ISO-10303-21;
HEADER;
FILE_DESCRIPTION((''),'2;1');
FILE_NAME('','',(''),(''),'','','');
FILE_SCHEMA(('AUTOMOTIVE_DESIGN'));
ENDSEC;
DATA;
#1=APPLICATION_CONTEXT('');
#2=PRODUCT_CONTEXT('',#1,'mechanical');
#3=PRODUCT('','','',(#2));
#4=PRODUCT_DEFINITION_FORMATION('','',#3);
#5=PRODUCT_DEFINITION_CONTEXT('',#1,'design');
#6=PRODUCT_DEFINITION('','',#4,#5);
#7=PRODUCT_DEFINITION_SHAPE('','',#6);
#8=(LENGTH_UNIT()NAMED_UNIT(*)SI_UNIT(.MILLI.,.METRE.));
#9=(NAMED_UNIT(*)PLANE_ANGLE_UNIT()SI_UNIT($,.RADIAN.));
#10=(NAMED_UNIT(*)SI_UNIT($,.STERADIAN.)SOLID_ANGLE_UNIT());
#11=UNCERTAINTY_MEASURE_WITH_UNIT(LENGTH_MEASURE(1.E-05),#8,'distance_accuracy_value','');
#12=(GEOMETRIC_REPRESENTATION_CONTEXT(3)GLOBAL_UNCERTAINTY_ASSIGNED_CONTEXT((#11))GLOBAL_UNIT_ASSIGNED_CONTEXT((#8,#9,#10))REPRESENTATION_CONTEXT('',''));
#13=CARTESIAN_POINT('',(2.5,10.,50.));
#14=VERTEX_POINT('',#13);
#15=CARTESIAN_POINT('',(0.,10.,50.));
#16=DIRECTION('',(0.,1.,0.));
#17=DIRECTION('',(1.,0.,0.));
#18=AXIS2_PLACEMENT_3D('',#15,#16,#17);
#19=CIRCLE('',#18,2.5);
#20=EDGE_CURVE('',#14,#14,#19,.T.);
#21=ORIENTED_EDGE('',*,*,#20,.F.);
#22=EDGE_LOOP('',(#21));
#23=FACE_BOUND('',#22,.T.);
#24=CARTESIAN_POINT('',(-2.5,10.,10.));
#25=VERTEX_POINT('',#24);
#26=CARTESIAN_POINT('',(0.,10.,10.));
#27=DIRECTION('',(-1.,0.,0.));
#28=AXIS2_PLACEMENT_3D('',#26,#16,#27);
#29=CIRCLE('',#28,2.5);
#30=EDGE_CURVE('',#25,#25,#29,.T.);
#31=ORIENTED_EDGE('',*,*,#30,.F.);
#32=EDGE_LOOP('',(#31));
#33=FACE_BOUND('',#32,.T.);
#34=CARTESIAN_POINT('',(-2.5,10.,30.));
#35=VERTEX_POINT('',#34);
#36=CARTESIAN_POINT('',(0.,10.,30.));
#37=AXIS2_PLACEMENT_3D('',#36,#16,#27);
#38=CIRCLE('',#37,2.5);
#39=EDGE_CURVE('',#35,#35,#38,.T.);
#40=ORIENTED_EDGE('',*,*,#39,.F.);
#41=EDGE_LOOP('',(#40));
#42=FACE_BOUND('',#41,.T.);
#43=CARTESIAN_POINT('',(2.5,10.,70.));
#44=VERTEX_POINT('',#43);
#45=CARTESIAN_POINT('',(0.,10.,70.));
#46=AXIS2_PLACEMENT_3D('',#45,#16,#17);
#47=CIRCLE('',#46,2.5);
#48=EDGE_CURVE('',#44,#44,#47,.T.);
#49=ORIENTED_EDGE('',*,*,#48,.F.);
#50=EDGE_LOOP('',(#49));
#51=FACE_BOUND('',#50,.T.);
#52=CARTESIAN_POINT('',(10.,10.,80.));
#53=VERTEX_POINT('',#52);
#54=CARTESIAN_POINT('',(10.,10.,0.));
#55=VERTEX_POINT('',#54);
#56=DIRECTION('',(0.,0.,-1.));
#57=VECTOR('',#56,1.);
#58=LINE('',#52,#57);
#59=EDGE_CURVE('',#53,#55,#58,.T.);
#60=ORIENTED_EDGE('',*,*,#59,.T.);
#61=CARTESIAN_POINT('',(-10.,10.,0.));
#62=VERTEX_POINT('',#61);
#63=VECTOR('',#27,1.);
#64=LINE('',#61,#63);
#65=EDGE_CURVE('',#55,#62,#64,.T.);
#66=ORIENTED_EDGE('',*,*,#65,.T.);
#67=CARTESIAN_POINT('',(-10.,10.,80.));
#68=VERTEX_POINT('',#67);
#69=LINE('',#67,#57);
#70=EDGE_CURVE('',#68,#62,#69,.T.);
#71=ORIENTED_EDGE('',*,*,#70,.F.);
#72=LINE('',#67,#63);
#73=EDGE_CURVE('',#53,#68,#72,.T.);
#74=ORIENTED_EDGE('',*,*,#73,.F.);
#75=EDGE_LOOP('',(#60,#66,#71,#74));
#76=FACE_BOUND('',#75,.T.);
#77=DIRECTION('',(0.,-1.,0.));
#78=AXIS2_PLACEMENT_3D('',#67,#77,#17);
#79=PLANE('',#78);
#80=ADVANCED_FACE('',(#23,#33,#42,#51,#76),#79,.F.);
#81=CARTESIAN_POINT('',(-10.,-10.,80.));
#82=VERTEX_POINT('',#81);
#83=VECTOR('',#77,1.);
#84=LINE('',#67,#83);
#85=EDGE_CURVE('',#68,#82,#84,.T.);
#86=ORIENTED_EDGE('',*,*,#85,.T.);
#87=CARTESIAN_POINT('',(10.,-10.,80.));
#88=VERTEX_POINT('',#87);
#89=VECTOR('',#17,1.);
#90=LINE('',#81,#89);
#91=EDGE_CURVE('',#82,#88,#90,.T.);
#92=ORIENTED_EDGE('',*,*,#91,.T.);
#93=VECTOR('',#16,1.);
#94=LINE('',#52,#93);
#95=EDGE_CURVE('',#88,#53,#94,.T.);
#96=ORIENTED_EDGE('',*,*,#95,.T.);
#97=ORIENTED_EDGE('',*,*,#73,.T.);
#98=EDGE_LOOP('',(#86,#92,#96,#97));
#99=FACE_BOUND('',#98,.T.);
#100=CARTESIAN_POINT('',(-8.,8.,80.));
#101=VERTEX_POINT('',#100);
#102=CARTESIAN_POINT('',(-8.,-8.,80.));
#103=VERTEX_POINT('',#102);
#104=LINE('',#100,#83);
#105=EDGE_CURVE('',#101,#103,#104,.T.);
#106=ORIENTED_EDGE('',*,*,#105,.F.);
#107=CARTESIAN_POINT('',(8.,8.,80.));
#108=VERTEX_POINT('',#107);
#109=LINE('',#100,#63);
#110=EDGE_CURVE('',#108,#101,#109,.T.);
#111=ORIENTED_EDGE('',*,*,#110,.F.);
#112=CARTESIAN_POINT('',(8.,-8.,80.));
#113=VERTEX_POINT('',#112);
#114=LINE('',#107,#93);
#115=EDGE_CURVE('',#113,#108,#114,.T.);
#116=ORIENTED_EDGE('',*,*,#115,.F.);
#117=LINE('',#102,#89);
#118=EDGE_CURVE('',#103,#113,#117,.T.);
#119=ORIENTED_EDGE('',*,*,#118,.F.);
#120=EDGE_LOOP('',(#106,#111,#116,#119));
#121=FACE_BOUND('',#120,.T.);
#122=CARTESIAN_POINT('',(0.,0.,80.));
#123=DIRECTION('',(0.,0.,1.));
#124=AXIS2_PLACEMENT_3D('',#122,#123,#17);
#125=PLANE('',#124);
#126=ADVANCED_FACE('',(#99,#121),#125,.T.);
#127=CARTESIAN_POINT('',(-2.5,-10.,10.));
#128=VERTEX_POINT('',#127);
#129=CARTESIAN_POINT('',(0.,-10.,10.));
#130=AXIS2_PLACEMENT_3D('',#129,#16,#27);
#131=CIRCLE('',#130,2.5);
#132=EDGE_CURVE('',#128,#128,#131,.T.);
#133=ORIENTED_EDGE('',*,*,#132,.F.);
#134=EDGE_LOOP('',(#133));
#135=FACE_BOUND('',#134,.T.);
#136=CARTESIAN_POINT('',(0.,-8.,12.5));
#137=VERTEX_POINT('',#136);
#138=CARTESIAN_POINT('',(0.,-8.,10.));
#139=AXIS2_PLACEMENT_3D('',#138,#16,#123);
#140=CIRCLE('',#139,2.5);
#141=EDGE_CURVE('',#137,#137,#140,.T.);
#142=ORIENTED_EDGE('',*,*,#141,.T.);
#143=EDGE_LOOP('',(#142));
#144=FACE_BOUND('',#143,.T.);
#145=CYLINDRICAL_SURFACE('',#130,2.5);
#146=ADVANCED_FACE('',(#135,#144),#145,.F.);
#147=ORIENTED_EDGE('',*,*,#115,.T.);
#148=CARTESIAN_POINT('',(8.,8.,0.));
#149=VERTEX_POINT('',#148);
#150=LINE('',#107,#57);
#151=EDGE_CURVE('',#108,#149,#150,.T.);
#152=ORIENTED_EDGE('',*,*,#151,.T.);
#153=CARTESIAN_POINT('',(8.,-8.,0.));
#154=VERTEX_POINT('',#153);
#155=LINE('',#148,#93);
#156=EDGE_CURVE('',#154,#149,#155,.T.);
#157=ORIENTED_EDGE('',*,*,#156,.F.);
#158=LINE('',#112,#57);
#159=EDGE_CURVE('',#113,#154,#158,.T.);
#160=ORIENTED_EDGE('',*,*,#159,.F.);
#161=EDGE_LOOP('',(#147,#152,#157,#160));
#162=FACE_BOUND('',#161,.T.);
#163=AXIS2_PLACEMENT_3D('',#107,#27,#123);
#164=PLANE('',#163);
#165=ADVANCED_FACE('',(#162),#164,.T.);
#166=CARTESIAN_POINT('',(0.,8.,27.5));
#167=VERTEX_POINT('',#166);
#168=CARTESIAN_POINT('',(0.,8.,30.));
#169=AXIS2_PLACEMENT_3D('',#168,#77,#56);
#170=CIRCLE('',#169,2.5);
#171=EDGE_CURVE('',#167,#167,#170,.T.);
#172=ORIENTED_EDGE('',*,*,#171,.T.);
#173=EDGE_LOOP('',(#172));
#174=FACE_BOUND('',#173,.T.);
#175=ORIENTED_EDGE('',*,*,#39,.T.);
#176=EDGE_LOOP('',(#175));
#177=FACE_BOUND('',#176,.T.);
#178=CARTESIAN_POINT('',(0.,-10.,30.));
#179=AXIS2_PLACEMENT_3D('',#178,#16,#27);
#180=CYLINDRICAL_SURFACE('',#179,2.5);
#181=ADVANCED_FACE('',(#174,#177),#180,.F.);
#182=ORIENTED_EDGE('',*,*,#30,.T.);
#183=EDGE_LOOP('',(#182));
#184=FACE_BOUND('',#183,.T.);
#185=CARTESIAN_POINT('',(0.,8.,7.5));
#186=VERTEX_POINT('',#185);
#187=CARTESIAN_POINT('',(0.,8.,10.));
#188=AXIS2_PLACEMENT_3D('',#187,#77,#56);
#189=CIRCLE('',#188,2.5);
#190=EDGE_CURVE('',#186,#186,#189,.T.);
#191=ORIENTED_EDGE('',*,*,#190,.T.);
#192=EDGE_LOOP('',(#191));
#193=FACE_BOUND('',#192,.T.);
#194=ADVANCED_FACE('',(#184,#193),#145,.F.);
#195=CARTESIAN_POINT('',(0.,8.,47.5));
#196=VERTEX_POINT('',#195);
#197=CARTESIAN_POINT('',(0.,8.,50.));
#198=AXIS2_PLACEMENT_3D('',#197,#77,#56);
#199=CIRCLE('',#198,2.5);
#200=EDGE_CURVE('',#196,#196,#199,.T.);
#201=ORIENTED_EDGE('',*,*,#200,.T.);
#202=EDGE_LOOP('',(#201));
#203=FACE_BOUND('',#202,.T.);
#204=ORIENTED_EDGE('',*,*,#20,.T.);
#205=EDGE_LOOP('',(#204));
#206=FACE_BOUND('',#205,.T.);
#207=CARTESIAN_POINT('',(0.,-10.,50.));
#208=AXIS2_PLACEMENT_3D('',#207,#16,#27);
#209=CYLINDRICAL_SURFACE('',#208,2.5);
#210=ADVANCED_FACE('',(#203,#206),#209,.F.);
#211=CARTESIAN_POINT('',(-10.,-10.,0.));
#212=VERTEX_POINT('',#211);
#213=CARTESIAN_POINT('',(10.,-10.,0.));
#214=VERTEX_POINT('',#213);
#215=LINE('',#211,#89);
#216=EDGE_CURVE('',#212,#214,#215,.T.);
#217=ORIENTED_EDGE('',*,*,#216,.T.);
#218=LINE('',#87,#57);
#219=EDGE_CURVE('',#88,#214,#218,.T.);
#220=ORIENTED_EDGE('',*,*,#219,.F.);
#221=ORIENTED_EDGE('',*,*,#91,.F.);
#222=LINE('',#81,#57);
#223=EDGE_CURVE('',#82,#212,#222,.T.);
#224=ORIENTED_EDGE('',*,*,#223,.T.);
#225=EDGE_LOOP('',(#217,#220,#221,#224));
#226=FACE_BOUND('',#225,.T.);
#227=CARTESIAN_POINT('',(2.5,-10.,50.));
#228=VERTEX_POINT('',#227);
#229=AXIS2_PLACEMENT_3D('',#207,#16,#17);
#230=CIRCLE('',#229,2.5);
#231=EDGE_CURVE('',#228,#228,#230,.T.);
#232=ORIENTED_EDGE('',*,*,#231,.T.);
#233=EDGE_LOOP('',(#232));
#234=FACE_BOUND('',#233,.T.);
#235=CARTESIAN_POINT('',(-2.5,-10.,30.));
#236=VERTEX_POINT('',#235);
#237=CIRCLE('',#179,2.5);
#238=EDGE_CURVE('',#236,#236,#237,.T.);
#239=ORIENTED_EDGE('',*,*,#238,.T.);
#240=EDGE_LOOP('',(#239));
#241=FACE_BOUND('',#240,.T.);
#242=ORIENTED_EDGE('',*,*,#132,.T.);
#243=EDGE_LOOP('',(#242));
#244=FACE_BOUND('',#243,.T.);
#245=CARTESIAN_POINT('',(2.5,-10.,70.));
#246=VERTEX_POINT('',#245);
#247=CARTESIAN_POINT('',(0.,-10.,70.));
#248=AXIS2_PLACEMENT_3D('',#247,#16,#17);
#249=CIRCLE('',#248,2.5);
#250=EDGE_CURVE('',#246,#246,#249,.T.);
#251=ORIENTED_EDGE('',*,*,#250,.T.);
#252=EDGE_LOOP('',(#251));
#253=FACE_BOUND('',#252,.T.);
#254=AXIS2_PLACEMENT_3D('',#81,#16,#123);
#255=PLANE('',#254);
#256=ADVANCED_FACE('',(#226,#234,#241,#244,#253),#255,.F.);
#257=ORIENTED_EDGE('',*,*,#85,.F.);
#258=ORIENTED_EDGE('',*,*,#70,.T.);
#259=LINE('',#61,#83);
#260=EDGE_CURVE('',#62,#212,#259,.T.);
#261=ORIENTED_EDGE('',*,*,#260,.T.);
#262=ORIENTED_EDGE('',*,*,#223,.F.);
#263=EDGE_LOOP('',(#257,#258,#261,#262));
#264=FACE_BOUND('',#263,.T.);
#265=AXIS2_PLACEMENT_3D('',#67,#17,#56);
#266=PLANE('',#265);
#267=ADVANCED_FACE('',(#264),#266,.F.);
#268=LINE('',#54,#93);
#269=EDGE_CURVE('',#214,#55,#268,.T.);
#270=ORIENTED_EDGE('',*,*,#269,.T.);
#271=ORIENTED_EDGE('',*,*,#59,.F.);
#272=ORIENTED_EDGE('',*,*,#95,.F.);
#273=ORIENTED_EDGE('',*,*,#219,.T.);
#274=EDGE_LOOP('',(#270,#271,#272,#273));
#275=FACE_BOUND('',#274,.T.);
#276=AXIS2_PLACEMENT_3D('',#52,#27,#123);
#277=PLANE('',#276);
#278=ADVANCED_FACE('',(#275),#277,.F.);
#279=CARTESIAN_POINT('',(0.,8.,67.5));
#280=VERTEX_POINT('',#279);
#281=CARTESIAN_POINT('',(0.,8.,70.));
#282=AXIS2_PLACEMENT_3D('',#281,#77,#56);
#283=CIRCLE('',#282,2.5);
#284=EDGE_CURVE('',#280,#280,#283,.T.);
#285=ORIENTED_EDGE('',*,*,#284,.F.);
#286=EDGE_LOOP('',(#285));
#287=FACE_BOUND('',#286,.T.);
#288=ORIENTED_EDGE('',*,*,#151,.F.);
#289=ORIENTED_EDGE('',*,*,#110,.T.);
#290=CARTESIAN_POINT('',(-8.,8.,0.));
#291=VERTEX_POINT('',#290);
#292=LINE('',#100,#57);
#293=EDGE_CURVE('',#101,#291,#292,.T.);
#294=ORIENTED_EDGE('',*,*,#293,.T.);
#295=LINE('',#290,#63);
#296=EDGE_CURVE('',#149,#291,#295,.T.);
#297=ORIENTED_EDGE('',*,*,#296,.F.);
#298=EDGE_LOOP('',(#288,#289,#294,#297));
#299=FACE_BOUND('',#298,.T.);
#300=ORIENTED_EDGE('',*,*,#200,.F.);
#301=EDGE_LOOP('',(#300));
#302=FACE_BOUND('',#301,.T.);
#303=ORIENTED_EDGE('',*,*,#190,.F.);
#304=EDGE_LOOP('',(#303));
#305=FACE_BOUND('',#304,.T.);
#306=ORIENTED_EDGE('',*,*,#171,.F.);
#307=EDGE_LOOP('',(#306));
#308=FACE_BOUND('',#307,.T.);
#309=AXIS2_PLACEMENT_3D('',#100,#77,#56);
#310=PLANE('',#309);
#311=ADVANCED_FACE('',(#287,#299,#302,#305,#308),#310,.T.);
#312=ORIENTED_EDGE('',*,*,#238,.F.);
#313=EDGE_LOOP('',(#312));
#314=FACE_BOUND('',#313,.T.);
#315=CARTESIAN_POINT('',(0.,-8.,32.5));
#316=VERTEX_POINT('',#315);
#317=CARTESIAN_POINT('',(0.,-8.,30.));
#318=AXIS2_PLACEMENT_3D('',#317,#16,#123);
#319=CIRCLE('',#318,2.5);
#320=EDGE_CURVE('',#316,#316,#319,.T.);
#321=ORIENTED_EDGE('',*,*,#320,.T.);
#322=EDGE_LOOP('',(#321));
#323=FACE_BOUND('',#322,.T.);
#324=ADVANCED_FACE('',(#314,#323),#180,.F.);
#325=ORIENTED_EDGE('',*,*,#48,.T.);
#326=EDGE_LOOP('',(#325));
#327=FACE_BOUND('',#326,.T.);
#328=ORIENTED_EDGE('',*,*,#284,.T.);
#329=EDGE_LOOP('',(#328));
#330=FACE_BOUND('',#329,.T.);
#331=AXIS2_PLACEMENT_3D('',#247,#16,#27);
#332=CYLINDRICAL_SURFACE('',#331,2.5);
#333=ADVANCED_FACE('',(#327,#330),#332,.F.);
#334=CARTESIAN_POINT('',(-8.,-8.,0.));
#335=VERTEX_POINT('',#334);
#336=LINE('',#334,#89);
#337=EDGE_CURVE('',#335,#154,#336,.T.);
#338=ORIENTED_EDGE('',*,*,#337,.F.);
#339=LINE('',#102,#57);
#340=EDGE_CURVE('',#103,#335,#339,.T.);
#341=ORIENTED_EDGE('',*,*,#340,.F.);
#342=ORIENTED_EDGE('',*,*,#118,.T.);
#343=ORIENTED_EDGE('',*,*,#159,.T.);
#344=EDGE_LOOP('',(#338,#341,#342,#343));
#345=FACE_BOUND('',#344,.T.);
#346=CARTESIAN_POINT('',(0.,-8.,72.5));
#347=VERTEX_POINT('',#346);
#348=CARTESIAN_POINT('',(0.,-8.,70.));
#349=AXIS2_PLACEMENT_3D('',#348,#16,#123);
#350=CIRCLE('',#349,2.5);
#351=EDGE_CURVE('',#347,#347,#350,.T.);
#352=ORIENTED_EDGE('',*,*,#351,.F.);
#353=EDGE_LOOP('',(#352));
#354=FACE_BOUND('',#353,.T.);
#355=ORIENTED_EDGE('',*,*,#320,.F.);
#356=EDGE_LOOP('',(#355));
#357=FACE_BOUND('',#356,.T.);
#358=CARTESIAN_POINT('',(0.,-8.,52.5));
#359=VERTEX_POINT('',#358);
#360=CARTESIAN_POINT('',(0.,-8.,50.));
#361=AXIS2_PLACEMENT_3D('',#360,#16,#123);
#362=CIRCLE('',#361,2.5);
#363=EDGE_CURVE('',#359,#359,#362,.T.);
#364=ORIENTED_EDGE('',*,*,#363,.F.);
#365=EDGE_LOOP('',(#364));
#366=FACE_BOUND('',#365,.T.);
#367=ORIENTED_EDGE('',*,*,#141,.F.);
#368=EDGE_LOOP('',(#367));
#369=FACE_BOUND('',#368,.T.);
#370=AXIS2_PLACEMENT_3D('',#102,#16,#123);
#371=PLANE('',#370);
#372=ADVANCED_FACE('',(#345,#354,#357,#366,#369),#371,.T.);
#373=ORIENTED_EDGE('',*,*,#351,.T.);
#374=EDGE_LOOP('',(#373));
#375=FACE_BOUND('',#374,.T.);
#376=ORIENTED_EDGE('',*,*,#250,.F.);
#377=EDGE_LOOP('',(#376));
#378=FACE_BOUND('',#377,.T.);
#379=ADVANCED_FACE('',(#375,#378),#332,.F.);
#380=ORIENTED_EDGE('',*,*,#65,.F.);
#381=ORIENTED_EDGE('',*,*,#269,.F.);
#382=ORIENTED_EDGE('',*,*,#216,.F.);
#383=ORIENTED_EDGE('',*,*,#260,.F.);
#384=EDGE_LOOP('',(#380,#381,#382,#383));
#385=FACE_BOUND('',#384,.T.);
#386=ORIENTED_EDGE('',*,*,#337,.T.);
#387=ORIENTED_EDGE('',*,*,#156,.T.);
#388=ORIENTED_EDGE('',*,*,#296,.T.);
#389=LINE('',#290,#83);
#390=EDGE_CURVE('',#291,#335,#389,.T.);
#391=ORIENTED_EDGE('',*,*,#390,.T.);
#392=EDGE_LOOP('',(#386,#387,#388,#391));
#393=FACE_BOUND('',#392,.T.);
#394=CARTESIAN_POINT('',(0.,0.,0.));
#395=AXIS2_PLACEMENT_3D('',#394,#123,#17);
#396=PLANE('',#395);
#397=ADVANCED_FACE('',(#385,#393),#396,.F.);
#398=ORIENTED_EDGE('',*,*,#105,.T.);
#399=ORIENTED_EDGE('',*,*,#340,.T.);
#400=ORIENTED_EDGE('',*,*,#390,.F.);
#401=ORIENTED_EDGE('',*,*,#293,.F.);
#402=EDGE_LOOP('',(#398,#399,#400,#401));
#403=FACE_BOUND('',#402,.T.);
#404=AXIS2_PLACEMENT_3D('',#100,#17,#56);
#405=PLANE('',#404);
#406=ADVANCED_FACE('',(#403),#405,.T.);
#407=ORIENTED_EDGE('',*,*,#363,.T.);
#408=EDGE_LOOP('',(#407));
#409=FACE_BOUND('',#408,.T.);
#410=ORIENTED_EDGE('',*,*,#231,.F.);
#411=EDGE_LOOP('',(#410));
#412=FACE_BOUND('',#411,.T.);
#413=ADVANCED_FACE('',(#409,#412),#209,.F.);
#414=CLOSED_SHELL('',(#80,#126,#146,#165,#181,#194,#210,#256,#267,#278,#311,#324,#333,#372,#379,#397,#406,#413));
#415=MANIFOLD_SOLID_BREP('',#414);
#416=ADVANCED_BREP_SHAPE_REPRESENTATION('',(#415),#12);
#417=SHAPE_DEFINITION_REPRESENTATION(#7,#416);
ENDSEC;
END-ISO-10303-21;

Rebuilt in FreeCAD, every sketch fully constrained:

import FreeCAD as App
import Part
import Sketcher
from FreeCAD import Vector
Q = App.Units.Quantity

doc = App.newDocument("Part")
params = doc.addObject("Spreadsheet::Sheet", "Params")
for row, (alias, value) in enumerate([
    ("sketch1_width", "20 mm"),
    ("sketch1_width2", "16 mm"),
    ("pad1_length", "80 mm"),
    ("sketch2_diameter", "5 mm"),
], start=1):
    params.set(f"A{row}", alias)
    params.set(f"B{row}", "=" + value)
    params.setAlias(f"B{row}", alias)

body = doc.addObject("PartDesign::Body", "Body")

sketch1 = body.newObject("Sketcher::SketchObject", "Sketch")
sketch1.AttachmentSupport = (doc.getObject("XY_Plane"), [""])
sketch1.MapMode = "FlatFace"
sketch1.addGeometry([
    Part.LineSegment(Vector(-10, 10, 0), Vector(-10, -10, 0)),
    Part.LineSegment(Vector(-10, -10, 0), Vector(10, -10, 0)),
    Part.LineSegment(Vector(10, -10, 0), Vector(10, 10, 0)),
    Part.LineSegment(Vector(10, 10, 0), Vector(-10, 10, 0)),
    Part.LineSegment(Vector(8, -8, 0), Vector(-8, -8, 0)),
    Part.LineSegment(Vector(-8, -8, 0), Vector(-8, 8, 0)),
    Part.LineSegment(Vector(-8, 8, 0), Vector(8, 8, 0)),
    Part.LineSegment(Vector(8, 8, 0), Vector(8, -8, 0)),
], False)
sketch1.addConstraint([
    Sketcher.Constraint("Coincident", 0, 2, 1, 1),
    Sketcher.Constraint("Coincident", 1, 2, 2, 1),
    Sketcher.Constraint("Coincident", 2, 2, 3, 1),
    Sketcher.Constraint("Coincident", 3, 2, 0, 1),
    Sketcher.Constraint("Coincident", 4, 2, 5, 1),
    Sketcher.Constraint("Coincident", 5, 2, 6, 1),
    Sketcher.Constraint("Coincident", 6, 2, 7, 1),
    Sketcher.Constraint("Coincident", 7, 2, 4, 1),
    Sketcher.Constraint("Vertical", 0),
    Sketcher.Constraint("Horizontal", 1),
    Sketcher.Constraint("Vertical", 2),
    Sketcher.Constraint("Horizontal", 3),
    Sketcher.Constraint("Horizontal", 4),
    Sketcher.Constraint("Vertical", 5),
    Sketcher.Constraint("Horizontal", 6),
    Sketcher.Constraint("Vertical", 7),
    Sketcher.Constraint("Symmetric", 0, 2, 2, 2, -1, 1),
    Sketcher.Constraint("Symmetric", 4, 2, 6, 2, -1, 1),
    Sketcher.Constraint("Equal", 3, 0),
    Sketcher.Constraint("Equal", 6, 5),
    Sketcher.Constraint("DistanceX", 1, 1, 1, 2, Q("20 mm")),
    Sketcher.Constraint("DistanceX", 4, 2, 4, 1, Q("16 mm")),
])
sketch1.setExpression("Constraints[20]", "Params.sketch1_width")
sketch1.setExpression("Constraints[21]", "Params.sketch1_width2")
pad1 = body.newObject("PartDesign::Pad", "Pad")
pad1.Profile = sketch1
pad1.setExpression("Length", "Params.pad1_length")

sketch2 = body.newObject("Sketcher::SketchObject", "Sketch001")
sketch2.AttachmentSupport = (doc.getObject("XZ_Plane"), [""])
sketch2.MapMode = "FlatFace"
sketch2.AttachmentOffset = App.Placement(Vector(0, 0, -10), App.Rotation())
sketch2.addGeometry([
    Part.Circle(Vector(0, 10, 0), Vector(0, 0, 1), 2.5),
    Part.Circle(Vector(0, 30, 0), Vector(0, 0, 1), 2.5),
    Part.Circle(Vector(0, 50, 0), Vector(0, 0, 1), 2.5),
    Part.Circle(Vector(0, 70, 0), Vector(0, 0, 1), 2.5),
], False)
sketch2.addConstraint([
    Sketcher.Constraint("Equal", 0, 1),
    Sketcher.Constraint("Equal", 1, 2),
    Sketcher.Constraint("Equal", 2, 3),
    Sketcher.Constraint("PointOnObject", 0, 3, -2),
    Sketcher.Constraint("PointOnObject", 1, 3, -2),
    Sketcher.Constraint("PointOnObject", 2, 3, -2),
    Sketcher.Constraint("PointOnObject", 3, 3, -2),
    Sketcher.Constraint("Diameter", 0, Q("5 mm")),
    Sketcher.Constraint("DistanceY", -1, 1, 0, 3, Q("10 mm")),
    Sketcher.Constraint("DistanceY", -1, 1, 1, 3, Q("30 mm")),
    Sketcher.Constraint("DistanceY", -1, 1, 2, 3, Q("50 mm")),
    Sketcher.Constraint("DistanceY", -1, 1, 3, 3, Q("70 mm")),
])
sketch2.setExpression("Constraints[7]", "Params.sketch2_diameter")
pocket1 = body.newObject("PartDesign::Pocket", "Pocket")
pocket1.Profile = sketch2
pocket1.Type = "ThroughAll"
pocket1.Reversed = True

doc.recompute()
